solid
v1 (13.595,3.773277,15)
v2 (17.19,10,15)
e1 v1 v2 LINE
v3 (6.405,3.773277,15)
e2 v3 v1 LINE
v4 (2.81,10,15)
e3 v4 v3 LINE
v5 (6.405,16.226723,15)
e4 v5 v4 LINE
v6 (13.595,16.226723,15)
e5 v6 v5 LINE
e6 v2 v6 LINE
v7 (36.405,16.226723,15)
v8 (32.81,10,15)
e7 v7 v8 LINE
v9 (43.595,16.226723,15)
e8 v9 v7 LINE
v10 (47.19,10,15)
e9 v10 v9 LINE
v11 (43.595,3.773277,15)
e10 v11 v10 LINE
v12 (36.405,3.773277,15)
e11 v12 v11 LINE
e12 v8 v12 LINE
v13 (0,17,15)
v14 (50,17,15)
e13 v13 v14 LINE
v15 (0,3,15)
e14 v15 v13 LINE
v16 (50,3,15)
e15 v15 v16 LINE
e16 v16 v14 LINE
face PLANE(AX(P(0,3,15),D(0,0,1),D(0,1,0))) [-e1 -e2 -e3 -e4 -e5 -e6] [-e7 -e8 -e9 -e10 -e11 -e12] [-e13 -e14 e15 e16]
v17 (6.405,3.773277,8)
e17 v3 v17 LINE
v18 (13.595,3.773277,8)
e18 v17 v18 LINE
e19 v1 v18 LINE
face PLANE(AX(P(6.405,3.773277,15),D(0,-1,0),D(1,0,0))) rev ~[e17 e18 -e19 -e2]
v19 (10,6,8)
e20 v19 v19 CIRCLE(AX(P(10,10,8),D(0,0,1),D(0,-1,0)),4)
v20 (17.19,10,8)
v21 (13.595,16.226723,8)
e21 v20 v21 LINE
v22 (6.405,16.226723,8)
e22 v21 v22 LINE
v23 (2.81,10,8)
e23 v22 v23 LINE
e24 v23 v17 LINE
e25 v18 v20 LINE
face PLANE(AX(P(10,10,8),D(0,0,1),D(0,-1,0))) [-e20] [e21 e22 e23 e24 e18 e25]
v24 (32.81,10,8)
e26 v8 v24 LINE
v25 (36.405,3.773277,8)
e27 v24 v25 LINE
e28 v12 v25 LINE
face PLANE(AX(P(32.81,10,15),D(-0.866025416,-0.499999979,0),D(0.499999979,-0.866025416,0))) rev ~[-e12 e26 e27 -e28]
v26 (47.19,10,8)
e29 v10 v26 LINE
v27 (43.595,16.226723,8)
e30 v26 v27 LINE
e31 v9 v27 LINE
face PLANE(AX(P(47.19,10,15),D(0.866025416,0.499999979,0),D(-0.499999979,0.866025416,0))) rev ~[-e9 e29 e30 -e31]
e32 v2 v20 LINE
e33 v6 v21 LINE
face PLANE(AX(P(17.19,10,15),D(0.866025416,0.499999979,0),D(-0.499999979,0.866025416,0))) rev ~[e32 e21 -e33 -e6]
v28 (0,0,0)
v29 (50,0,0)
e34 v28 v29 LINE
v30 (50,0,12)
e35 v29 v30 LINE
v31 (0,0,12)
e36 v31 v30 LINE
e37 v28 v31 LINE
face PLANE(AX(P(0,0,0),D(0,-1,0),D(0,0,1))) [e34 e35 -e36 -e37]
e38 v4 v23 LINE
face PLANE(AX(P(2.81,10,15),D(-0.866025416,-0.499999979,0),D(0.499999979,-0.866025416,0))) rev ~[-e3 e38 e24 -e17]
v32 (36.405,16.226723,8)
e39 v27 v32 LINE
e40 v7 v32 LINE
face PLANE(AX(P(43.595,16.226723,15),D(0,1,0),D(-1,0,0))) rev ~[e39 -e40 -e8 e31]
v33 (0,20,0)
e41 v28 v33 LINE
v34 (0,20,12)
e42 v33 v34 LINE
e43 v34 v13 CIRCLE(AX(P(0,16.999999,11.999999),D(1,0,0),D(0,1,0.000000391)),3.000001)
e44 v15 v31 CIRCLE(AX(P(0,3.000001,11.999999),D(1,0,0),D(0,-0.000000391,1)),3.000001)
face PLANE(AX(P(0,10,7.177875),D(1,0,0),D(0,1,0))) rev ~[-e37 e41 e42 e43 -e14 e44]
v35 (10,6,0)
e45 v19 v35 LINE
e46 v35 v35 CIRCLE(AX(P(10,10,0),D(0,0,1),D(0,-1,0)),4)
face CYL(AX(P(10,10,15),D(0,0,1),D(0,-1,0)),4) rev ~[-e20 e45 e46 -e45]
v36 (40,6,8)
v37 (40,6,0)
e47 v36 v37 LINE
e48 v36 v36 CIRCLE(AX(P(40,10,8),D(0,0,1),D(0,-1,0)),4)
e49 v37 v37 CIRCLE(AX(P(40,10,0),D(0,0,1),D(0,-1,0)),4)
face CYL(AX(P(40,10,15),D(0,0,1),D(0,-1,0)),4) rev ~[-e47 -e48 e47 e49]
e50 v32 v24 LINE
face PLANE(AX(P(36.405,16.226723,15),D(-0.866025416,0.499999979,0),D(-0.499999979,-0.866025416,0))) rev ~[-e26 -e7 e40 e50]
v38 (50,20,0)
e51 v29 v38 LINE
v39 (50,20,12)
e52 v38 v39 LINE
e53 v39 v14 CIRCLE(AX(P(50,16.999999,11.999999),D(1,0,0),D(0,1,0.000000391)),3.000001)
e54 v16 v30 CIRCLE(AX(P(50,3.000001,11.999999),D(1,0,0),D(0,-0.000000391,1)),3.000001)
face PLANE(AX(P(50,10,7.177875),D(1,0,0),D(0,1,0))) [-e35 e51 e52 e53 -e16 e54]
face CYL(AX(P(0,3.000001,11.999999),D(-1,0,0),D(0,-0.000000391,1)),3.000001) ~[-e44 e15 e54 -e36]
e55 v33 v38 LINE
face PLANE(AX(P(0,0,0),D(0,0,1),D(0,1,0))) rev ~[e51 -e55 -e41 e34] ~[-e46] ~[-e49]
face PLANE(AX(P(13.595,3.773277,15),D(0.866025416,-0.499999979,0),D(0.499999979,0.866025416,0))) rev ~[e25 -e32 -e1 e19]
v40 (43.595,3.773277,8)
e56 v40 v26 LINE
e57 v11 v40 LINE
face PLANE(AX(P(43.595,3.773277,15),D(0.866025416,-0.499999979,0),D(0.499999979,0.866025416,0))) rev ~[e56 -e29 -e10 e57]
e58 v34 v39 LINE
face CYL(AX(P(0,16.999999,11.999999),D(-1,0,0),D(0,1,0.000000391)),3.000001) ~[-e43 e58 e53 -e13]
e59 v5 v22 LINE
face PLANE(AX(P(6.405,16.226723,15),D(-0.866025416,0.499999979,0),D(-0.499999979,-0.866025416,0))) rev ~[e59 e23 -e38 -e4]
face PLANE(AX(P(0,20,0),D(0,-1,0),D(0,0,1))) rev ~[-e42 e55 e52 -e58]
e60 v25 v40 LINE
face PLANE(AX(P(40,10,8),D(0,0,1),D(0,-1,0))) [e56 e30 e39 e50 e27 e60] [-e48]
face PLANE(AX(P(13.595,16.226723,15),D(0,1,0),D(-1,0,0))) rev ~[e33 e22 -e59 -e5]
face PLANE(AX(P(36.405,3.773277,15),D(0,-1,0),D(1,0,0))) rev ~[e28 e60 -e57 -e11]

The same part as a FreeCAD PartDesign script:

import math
import FreeCAD as App
import Part
import Sketcher
from FreeCAD import Vector
Q = App.Units.Quantity


def add_polygon(sketch, points):
    """Adds a closed chain of lines whose ends are joined by coincident constraints."""
    first, n = sketch.GeometryCount, len(points)
    for a, b in zip(points, points[1:] + points[:1]):
        sketch.addGeometry(Part.LineSegment(App.Vector(*a, 0), App.Vector(*b, 0)), False)
    for i in range(n):
        sketch.addConstraint(Sketcher.Constraint("Coincident", first + i, 2, first + (i + 1) % n, 1))

doc = App.newDocument("Part")
body = doc.addObject("PartDesign::Body", "Body")

# Sketch on YZ plane
sketch1 = doc.addObject("Sketcher::SketchObject", "Sketch")
body.addObject(sketch1)
sketch1.AttachmentSupport = (doc.YZ_Plane, [""])
sketch1.MapMode = "FlatFace"
sketch1.addGeometry([
    Part.LineSegment(Vector(0, 0, 0), Vector(20, 0, 0)),  # 0
    Part.LineSegment(Vector(20, 0, 0), Vector(20, 12, 0)),  # 1
    Part.ArcOfCircle(Part.Circle(Vector(17, 12, 0), Vector(0, 0, 1), 3), math.radians(0), math.radians(90)),  # 2
    Part.LineSegment(Vector(17, 15, 0), Vector(3, 15, 0)),  # 3
    Part.ArcOfCircle(Part.Circle(Vector(3, 12, 0), Vector(0, 0, 1), 3), math.radians(90), math.radians(180)),  # 4
    Part.LineSegment(Vector(0, 12, 0), Vector(0, 0, 0)),  # 5
], False)
sketch1.addConstraint([
    Sketcher.Constraint("Coincident", 0, 2, 1, 1),
    Sketcher.Constraint("Tangent", 1, 2, 2, 1),
    Sketcher.Constraint("Tangent", 2, 2, 3, 1),
    Sketcher.Constraint("Tangent", 3, 2, 4, 1),
    Sketcher.Constraint("Tangent", 4, 2, 5, 1),
    Sketcher.Constraint("Coincident", 5, 2, 0, 1),
    Sketcher.Constraint("Horizontal", 0),
    Sketcher.Constraint("Vertical", 1),
    Sketcher.Constraint("Horizontal", 3),
    Sketcher.Constraint("Vertical", 5),
    Sketcher.Constraint("Coincident", 5, 2, -1, 1),
    Sketcher.Constraint("Equal", 2, 4),
    Sketcher.Constraint("Radius", 2, Q("3.000001 mm")),
    Sketcher.Constraint("DistanceX", 0, 1, 0, 2, Q("20 mm")),
    Sketcher.Constraint("DistanceY", 1, 1, 1, 2, Q("12 mm")),
])
pad1 = doc.addObject("PartDesign::Pad", "Pad")
body.addObject(pad1)
pad1.Profile = sketch1
pad1.Length = 50

# Sketch on XY plane
sketch2 = doc.addObject("Sketcher::SketchObject", "Sketch001")
body.addObject(sketch2)
sketch2.AttachmentSupport = (doc.XY_Plane, [""])
sketch2.MapMode = "FlatFace"
sketch2.AttachmentOffset = App.Placement(Vector(0, 0, 15), App.Rotation())
sketch2.addGeometry([
    Part.Circle(Vector(40, 10, 0), Vector(0, 0, 1), 4),
    Part.Circle(Vector(10, 10, 0), Vector(0, 0, 1), 4),
], False)
sketch2.addConstraint([
    Sketcher.Constraint("Equal", 0, 1),
    Sketcher.Constraint("Horizontal", 0, 3, 1, 3),
    Sketcher.Constraint("Diameter", 0, Q("8 mm")),
    Sketcher.Constraint("DistanceX", -1, 1, 0, 3, Q("40 mm")),
    Sketcher.Constraint("DistanceY", -1, 1, 0, 3, Q("10 mm")),
    Sketcher.Constraint("DistanceX", -1, 1, 1, 3, Q("10 mm")),
])
pocket1 = doc.addObject("PartDesign::Pocket", "Pocket")
body.addObject(pocket1)
pocket1.Profile = sketch2
pocket1.Type = "ThroughAll"

# Sketch on XY plane
sketch3 = doc.addObject("Sketcher::SketchObject", "Sketch002")
body.addObject(sketch3)
sketch3.AttachmentSupport = (doc.XY_Plane, [""])
sketch3.MapMode = "FlatFace"
sketch3.AttachmentOffset = App.Placement(Vector(0, 0, 15), App.Rotation())
add_polygon(sketch3, [(36, 16), (33, 10), (36, 4), (44, 4), (47, 10), (44, 16)])  # lines 0-5
add_polygon(sketch3, [(6, 16), (3, 10), (6, 4), (14, 4), (17, 10), (14, 16)])  # lines 6-11
sketch3.addConstraint([
    Sketcher.Constraint("Horizontal", 2),
    Sketcher.Constraint("Horizontal", 5),
    Sketcher.Constraint("Horizontal", 8),
    Sketcher.Constraint("Horizontal", 11),
    Sketcher.Constraint("Parallel", 0, 3),
    Sketcher.Constraint("Parallel", 1, 4),
    Sketcher.Constraint("Parallel", 3, 6),
    Sketcher.Constraint("Parallel", 4, 7),
    Sketcher.Constraint("Parallel", 6, 9),
    Sketcher.Constraint("Parallel", 7, 10),
    Sketcher.Constraint("Horizontal", 0, 2, 3, 2),
    Sketcher.Constraint("Horizontal", 3, 2, 6, 2),
    Sketcher.Constraint("Horizontal", 2, 2, 7, 2),
    Sketcher.Constraint("Horizontal", 6, 2, 9, 2),
    Sketcher.Constraint("Horizontal", 5, 2, 10, 2),
    Sketcher.Constraint("Vertical", 2, 2, 4, 2),
    Sketcher.Constraint("Vertical", 1, 2, 5, 2),
    Sketcher.Constraint("Equal", 5, 8),
    Sketcher.Constraint("Angle", 0, Q("-119.999999 deg")),
    Sketcher.Constraint("DistanceY", -1, 1, 0, 2, Q("10 mm")),
    Sketcher.Constraint("DistanceX", 6, 2, 0, 2, Q("30 mm")),
    Sketcher.Constraint("DistanceX", 2, 1, 2, 2, Q("7.19 mm")),
    Sketcher.Constraint("Distance", 0, Q("7.19 mm")),
    Sketcher.Constraint("DistanceX", -1, 1, 0, 2, Q("32.81 mm")),
])
pocket2 = doc.addObject("PartDesign::Pocket", "Pocket001")
body.addObject(pocket2)
pocket2.Profile = sketch3
pocket2.Length = 7

doc.recompute()
